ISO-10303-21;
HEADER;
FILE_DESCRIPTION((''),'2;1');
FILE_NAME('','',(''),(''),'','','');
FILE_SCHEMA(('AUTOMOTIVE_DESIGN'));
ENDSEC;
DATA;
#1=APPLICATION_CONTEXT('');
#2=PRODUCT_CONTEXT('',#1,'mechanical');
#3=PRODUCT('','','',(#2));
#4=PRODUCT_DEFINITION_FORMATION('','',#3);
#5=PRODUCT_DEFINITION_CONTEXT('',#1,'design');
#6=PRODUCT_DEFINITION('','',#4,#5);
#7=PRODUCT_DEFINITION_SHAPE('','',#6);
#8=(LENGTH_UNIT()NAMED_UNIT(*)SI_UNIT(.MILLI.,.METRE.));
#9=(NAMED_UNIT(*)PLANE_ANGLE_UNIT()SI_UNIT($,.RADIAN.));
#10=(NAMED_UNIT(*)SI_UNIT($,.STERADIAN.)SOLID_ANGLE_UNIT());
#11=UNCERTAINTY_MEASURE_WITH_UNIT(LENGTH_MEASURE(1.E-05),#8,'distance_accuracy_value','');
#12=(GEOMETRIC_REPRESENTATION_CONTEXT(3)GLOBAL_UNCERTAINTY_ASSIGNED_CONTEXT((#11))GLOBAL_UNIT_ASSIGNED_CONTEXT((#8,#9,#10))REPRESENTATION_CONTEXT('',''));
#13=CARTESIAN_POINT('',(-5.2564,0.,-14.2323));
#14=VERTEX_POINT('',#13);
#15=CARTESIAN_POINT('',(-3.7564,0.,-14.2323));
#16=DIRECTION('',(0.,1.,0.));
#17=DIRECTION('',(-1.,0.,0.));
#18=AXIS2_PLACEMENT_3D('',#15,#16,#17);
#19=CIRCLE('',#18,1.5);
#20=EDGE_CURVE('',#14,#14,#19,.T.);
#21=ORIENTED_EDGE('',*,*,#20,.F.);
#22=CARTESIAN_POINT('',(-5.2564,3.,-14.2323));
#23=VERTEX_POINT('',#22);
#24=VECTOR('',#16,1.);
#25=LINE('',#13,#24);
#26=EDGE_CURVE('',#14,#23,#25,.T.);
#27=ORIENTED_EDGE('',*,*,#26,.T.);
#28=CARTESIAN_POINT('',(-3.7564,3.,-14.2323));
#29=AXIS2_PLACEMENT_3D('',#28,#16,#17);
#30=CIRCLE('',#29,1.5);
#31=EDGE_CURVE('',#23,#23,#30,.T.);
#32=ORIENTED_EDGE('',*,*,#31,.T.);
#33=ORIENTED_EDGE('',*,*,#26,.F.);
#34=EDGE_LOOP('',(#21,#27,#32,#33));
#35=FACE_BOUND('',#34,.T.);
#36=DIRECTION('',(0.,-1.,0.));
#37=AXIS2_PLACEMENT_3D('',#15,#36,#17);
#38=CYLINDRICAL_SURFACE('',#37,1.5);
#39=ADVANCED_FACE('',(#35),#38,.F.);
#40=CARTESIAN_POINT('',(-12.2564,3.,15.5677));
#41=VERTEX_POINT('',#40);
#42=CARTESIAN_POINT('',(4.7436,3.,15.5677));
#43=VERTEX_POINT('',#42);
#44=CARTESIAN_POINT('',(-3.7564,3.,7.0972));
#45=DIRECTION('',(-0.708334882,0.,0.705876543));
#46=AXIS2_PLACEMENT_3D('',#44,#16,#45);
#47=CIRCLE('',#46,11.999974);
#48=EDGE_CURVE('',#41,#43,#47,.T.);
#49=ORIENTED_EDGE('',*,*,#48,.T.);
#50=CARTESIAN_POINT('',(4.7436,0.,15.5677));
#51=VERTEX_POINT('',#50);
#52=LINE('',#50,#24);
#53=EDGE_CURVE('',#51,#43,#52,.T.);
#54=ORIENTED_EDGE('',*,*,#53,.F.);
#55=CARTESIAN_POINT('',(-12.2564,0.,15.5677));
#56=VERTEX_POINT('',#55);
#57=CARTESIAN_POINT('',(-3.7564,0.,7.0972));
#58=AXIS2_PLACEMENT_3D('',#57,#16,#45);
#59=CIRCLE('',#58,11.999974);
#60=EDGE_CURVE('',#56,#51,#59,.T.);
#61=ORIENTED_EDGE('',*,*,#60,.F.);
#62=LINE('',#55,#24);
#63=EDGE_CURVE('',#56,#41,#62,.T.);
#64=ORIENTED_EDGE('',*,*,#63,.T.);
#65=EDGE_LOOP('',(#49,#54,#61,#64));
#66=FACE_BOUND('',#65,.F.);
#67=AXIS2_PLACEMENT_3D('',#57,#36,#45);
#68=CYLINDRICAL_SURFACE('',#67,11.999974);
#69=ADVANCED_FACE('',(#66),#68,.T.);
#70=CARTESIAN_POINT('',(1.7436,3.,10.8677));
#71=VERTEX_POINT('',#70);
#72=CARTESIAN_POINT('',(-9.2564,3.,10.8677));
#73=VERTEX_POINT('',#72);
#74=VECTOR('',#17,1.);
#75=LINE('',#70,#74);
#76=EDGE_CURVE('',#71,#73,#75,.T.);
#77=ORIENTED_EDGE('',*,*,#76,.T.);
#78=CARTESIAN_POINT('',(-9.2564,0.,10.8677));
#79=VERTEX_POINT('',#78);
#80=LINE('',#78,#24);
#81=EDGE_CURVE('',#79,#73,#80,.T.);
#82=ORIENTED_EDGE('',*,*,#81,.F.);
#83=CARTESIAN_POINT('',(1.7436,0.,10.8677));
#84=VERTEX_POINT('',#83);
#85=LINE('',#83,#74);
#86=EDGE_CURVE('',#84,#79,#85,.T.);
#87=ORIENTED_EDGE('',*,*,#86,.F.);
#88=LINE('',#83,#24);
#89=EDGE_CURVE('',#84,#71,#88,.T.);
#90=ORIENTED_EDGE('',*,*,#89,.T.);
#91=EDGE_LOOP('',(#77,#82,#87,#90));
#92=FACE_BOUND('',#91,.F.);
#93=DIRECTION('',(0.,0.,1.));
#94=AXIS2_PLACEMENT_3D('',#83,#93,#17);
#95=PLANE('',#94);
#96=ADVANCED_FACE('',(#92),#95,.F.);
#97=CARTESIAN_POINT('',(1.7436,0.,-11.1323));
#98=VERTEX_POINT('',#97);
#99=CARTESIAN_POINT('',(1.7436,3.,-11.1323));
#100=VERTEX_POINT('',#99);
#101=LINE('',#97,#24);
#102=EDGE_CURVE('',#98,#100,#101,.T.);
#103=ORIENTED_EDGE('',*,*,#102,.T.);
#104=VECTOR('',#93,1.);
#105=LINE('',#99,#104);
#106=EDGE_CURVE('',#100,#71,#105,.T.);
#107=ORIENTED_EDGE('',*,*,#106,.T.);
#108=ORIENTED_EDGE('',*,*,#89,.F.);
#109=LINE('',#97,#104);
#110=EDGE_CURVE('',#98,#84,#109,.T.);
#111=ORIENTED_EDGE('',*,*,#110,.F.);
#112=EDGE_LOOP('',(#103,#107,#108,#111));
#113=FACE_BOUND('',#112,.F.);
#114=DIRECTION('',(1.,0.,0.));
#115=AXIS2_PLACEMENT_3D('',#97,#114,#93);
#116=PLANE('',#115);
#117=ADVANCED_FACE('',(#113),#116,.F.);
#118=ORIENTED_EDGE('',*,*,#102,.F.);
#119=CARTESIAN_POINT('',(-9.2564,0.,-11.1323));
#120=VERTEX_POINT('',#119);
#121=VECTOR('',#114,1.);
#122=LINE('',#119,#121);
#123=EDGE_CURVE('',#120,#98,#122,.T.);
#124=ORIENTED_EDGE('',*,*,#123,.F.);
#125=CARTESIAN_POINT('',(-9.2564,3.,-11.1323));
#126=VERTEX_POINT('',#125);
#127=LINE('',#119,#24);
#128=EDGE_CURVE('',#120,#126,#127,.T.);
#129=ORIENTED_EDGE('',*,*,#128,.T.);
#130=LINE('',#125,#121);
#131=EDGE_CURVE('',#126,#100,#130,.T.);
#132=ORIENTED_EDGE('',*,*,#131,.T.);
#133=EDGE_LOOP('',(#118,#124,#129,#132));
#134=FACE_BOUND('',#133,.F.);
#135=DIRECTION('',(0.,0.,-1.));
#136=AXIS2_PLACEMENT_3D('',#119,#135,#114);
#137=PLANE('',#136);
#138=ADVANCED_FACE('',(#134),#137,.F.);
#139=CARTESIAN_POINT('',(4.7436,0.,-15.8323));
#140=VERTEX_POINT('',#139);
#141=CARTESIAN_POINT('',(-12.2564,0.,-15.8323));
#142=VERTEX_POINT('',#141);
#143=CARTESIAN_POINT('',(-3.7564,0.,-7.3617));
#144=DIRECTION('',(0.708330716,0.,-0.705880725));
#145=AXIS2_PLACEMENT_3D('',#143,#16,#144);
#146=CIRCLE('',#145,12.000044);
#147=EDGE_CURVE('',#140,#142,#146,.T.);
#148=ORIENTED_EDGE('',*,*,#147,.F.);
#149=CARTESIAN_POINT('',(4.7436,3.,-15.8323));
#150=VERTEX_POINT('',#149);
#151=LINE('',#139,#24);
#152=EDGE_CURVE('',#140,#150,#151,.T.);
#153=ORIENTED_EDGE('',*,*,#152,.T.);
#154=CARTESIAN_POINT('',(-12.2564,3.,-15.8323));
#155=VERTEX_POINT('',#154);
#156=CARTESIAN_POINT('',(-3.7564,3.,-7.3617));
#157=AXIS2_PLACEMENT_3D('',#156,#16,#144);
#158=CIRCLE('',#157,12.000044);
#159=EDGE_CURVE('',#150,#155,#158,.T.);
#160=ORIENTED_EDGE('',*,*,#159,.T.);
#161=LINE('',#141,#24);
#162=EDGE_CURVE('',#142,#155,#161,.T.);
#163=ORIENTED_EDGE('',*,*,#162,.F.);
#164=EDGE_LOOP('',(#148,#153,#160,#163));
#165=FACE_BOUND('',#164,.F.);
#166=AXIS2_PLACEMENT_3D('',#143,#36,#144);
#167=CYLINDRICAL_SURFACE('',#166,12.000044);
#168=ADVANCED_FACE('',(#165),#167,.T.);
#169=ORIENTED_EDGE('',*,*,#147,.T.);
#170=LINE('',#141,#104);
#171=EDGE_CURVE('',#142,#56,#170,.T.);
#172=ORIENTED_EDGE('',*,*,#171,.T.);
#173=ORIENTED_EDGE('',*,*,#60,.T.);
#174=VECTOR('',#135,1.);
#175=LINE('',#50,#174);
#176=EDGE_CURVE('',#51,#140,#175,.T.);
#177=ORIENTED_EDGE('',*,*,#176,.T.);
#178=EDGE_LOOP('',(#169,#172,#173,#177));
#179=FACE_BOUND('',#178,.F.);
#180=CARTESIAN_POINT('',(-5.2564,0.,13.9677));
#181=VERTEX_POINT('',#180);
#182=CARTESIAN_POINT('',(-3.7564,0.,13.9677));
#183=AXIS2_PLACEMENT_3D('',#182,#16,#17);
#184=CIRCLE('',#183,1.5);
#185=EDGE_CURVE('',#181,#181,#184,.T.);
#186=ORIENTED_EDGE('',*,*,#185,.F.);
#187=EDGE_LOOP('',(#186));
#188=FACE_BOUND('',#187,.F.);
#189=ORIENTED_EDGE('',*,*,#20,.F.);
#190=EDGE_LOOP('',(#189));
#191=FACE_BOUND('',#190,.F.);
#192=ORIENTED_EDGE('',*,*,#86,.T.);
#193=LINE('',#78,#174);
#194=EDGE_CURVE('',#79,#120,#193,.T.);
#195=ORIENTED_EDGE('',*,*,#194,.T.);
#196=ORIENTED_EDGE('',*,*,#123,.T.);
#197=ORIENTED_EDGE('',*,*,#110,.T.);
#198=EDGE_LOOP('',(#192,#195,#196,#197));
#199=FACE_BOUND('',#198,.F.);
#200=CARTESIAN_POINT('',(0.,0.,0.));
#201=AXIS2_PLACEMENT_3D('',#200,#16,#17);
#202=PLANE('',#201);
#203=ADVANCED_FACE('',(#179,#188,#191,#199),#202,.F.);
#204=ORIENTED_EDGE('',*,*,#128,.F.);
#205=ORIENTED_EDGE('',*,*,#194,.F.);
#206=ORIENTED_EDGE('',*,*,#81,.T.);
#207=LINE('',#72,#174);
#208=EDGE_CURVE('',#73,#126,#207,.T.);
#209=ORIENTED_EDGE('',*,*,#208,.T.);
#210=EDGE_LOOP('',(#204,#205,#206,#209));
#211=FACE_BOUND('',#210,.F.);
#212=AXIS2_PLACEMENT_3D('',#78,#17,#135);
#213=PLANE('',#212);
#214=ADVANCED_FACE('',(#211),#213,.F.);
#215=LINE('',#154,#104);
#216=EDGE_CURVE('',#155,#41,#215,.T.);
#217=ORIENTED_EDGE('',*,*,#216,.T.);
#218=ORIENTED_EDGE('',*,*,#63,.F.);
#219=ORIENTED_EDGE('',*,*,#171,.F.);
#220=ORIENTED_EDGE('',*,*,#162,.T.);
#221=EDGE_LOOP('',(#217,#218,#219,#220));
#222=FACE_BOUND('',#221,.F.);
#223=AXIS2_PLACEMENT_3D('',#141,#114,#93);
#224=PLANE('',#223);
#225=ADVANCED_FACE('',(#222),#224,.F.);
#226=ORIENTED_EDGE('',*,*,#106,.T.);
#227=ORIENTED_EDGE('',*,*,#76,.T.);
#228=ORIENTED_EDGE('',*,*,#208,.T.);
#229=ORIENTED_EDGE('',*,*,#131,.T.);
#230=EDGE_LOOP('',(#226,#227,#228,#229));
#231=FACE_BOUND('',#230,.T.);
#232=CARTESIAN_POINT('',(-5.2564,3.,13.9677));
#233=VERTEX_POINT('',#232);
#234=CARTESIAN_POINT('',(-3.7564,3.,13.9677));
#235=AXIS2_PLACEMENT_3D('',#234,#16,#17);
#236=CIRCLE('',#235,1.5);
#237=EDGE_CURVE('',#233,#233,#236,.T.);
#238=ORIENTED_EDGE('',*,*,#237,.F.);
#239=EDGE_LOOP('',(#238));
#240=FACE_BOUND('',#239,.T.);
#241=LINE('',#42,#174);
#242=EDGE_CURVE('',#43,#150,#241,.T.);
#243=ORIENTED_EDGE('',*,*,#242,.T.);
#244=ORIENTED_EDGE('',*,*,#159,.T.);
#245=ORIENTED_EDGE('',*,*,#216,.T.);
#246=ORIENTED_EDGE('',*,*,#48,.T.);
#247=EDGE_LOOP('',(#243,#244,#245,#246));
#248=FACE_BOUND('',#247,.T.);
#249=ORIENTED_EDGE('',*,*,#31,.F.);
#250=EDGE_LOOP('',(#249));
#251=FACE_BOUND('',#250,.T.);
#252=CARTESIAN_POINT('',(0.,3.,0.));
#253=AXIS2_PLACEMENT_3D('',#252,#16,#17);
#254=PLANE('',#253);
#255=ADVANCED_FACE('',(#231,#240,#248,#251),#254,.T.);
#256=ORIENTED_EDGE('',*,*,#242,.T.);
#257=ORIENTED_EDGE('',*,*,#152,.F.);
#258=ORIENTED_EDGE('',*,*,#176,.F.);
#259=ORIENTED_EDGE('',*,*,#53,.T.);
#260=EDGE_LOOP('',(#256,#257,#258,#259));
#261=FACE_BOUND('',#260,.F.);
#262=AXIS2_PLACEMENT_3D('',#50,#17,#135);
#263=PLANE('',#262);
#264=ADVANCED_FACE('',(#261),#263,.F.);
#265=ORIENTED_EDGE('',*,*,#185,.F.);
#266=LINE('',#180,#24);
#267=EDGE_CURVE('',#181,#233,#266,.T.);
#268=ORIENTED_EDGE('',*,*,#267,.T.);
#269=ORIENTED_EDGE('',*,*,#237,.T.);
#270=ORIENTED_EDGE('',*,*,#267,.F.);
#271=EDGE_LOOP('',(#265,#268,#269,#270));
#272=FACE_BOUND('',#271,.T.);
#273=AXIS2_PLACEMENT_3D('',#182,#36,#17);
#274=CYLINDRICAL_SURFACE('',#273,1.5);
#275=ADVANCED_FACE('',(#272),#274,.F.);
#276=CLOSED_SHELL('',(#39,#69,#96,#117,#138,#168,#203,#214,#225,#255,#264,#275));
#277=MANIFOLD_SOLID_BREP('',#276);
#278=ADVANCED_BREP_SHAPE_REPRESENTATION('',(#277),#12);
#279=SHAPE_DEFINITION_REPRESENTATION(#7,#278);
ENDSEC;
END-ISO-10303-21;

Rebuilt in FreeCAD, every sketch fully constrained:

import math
import FreeCAD as App
import Part
import Sketcher
from FreeCAD import Vector
Q = App.Units.Quantity

doc = App.newDocument("Part")
body = doc.addObject("PartDesign::Body", "Body")

# Sketch on XZ plane
sketch1 = doc.addObject("Sketcher::SketchObject", "Sketch")
body.addObject(sketch1)
sketch1.AttachmentSupport = (doc.XZ_Plane, [""])
sketch1.MapMode = "FlatFace"
sketch1.addGeometry([
    Part.ArcOfCircle(Part.Circle(Vector(-3.8, -7.4, 0), Vector(0, 0, 1), 12), math.radians(-135), math.radians(-45)),  # 0
    Part.LineSegment(Vector(-12.3, -15.8, 0), Vector(-12.3, 15.6, 0)),  # 1
    Part.ArcOfCircle(Part.Circle(Vector(-3.8, 7.1, 0), Vector(0, 0, 1), 12), math.radians(45), math.radians(135)),  # 2
    Part.LineSegment(Vector(4.7, 15.6, 0), Vector(4.7, -15.8, 0)),  # 3
    Part.Circle(Vector(-3.8, -14.2, 0), Vector(0, 0, 1), 1.5),  # 4
    Part.LineSegment(Vector(1.7, 10.9, 0), Vector(-9.3, 10.9, 0)),  # 5
    Part.LineSegment(Vector(-9.3, 10.9, 0), Vector(-9.3, -11.1, 0)),  # 6
    Part.LineSegment(Vector(-9.3, -11.1, 0), Vector(1.7, -11.1, 0)),  # 7
    Part.LineSegment(Vector(1.7, -11.1, 0), Vector(1.7, 10.9, 0)),  # 8
    Part.Circle(Vector(-3.8, 14, 0), Vector(0, 0, 1), 1.5),  # 9
], False)
sketch1.addConstraint([
    Sketcher.Constraint("Coincident", 0, 1, 1, 1),
    Sketcher.Constraint("Coincident", 1, 2, 2, 2),
    Sketcher.Constraint("Coincident", 2, 1, 3, 1),
    Sketcher.Constraint("Coincident", 3, 2, 0, 2),
    Sketcher.Constraint("Coincident", 5, 2, 6, 1),
    Sketcher.Constraint("Coincident", 6, 2, 7, 1),
    Sketcher.Constraint("Coincident", 7, 2, 8, 1),
    Sketcher.Constraint("Coincident", 8, 2, 5, 1),
    Sketcher.Constraint("Vertical", 1),
    Sketcher.Constraint("Vertical", 3),
    Sketcher.Constraint("Horizontal", 5),
    Sketcher.Constraint("Vertical", 6),
    Sketcher.Constraint("Horizontal", 7),
    Sketcher.Constraint("Vertical", 8),
    Sketcher.Constraint("Equal", 0, 2),
    Sketcher.Constraint("Equal", 4, 9),
    Sketcher.Constraint("Horizontal", 1, 2, 2, 1),
    Sketcher.Constraint("Horizontal", 0, 1, 3, 2),
    Sketcher.Constraint("Vertical", 2, 3, 4, 3),
    Sketcher.Constraint("Vertical", 4, 3, 9, 3),
    Sketcher.Constraint("DistanceY", 6, 2, 6, 1, Q("22 mm")),
    Sketcher.Constraint("Diameter", 4, Q("3 mm")),
    Sketcher.Constraint("Radius", 0, Q("12 mm")),
    Sketcher.Constraint("DistanceX", 5, 2, 5, 1, Q("11 mm")),
    Sketcher.Constraint("DistanceY", 1, 1, 1, 2, Q("31.4 mm")),
    Sketcher.Constraint("DistanceX", 1, 2, 2, 1, Q("17 mm")),
    Sketcher.Constraint("DistanceX", 1, 2, 5, 2, Q("3 mm")),
    Sketcher.Constraint("DistanceY", 4, 3, 9, 3, Q("28.2 mm")),
    Sketcher.Constraint("DistanceY", 0, 1, 4, 3, Q("1.6 mm")),
    Sketcher.Constraint("DistanceY", 5, 2, 1, 2, Q("4.7 mm")),
    Sketcher.Constraint("DistanceX", 0, 3, -1, 1, Q("3.7564 mm")),
    Sketcher.Constraint("DistanceY", 0, 3, -1, 1, Q("7.3617 mm")),
])
pad1 = doc.addObject("PartDesign::Pad", "Pad")
body.addObject(pad1)
pad1.Profile = sketch1
pad1.Length = 3
pad1.Reversed = True

doc.recompute()
